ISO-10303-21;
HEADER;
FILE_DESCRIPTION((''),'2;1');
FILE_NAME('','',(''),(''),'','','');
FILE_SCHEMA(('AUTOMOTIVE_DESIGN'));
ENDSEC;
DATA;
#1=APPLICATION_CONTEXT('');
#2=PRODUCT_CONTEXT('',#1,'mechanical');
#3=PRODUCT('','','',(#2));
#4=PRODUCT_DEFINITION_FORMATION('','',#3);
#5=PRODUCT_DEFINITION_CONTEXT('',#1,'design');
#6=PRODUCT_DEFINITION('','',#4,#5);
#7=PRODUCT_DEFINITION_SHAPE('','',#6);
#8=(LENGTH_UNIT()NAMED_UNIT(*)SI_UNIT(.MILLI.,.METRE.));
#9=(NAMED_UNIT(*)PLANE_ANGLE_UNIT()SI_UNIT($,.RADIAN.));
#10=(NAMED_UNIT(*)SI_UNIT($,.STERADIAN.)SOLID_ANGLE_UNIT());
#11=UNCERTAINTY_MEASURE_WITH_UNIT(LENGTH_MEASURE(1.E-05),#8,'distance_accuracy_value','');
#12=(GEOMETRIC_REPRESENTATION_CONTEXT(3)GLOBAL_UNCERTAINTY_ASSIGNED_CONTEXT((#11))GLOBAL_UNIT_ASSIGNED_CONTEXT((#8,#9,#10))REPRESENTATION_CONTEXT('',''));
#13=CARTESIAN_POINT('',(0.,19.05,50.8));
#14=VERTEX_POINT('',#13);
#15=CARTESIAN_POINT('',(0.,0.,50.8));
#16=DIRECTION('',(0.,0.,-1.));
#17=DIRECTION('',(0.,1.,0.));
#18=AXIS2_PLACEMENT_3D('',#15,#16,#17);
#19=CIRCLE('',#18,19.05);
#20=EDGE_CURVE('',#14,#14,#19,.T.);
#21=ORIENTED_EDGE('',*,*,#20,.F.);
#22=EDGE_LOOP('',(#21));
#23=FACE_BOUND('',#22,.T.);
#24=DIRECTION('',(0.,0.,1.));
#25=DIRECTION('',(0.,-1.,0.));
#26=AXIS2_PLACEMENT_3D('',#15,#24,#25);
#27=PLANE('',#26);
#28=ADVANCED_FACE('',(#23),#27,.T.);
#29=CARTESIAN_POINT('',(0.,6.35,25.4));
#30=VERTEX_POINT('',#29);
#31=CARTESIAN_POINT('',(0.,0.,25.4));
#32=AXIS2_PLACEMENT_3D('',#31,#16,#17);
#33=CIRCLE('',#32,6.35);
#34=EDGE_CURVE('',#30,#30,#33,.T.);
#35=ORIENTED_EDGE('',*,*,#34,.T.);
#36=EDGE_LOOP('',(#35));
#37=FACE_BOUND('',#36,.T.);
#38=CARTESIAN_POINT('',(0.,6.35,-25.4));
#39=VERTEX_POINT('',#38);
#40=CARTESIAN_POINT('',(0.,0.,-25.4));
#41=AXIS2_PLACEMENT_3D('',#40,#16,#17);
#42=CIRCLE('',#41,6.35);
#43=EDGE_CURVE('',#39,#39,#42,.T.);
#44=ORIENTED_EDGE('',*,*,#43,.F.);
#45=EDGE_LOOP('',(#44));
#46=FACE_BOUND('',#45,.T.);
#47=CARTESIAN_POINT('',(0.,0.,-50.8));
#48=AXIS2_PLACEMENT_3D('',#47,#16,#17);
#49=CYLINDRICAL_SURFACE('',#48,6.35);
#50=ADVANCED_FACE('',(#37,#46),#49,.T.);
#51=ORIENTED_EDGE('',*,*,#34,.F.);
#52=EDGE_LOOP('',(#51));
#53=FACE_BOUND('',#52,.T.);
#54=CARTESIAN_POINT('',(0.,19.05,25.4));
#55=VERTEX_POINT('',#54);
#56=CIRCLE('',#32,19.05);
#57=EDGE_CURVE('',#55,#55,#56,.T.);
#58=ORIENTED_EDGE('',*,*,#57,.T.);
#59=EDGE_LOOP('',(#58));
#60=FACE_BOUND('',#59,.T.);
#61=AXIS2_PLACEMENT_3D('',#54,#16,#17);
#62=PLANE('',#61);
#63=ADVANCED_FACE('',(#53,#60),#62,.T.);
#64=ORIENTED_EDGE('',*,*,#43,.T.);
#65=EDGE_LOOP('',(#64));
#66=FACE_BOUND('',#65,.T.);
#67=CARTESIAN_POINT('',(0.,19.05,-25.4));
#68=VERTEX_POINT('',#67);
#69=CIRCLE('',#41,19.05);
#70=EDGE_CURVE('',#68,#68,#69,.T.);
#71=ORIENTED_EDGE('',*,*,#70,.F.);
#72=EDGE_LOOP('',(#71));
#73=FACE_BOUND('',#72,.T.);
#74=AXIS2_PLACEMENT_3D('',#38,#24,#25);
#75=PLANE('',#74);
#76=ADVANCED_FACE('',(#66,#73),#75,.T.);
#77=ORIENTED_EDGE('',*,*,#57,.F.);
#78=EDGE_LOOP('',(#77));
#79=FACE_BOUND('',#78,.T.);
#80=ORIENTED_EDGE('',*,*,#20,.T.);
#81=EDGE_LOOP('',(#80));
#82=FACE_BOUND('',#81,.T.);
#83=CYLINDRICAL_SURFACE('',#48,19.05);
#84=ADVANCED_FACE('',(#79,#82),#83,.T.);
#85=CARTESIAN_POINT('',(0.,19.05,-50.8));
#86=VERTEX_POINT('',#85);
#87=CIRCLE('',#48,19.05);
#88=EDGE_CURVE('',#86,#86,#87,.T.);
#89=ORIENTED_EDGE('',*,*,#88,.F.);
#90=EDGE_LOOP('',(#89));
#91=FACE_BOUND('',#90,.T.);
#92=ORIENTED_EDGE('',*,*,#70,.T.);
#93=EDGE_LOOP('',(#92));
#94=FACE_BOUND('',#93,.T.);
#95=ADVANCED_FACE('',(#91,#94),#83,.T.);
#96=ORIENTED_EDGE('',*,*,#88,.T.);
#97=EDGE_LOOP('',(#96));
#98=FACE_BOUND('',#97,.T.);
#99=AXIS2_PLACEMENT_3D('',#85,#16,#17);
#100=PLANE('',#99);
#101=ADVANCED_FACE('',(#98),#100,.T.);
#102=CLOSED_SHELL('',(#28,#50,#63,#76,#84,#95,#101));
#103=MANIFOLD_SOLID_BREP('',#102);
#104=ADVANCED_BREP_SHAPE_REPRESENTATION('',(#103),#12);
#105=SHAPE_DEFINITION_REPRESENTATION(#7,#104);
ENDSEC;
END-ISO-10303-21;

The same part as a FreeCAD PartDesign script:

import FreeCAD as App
import Part
import Sketcher
from FreeCAD import Vector
Q = App.Units.Quantity

doc = App.newDocument("Part")
body = doc.addObject("PartDesign::Body", "Body")

# Sketch on YZ plane
sketch1 = body.newObject("Sketcher::SketchObject", "Sketch")
sketch1.AttachmentSupport = (doc.getObject("YZ_Plane"), [""])
sketch1.MapMode = "FlatFace"
sketch1.addGeometry(Part.LineSegment(Vector(0, 50.8, 0), Vector(0, -50.8, 0)), False)
sketch1.addGeometry(Part.LineSegment(Vector(0, -50.8, 0), Vector(19.05, -50.8, 0)), False)
sketch1.addGeometry(Part.LineSegment(Vector(19.05, -50.8, 0), Vector(19.05, -25.4, 0)), False)
sketch1.addGeometry(Part.LineSegment(Vector(19.05, -25.4, 0), Vector(6.35, -25.4, 0)), False)
sketch1.addGeometry(Part.LineSegment(Vector(6.35, -25.4, 0), Vector(6.35, 25.4, 0)), False)
sketch1.addGeometry(Part.LineSegment(Vector(6.35, 25.4, 0), Vector(19.05, 25.4, 0)), False)
sketch1.addGeometry(Part.LineSegment(Vector(19.05, 25.4, 0), Vector(19.05, 50.8, 0)), False)
sketch1.addGeometry(Part.LineSegment(Vector(19.05, 50.8, 0), Vector(0, 50.8, 0)), False)
sketch1.addConstraint(Sketcher.Constraint("Coincident", 0, 2, 1, 1))
sketch1.addConstraint(Sketcher.Constraint("Coincident", 1, 2, 2, 1))
sketch1.addConstraint(Sketcher.Constraint("Coincident", 2, 2, 3, 1))
sketch1.addConstraint(Sketcher.Constraint("Coincident", 3, 2, 4, 1))
sketch1.addConstraint(Sketcher.Constraint("Coincident", 4, 2, 5, 1))
sketch1.addConstraint(Sketcher.Constraint("Coincident", 5, 2, 6, 1))
sketch1.addConstraint(Sketcher.Constraint("Coincident", 6, 2, 7, 1))
sketch1.addConstraint(Sketcher.Constraint("Coincident", 7, 2, 0, 1))
sketch1.addConstraint(Sketcher.Constraint("Vertical", 0))
sketch1.addConstraint(Sketcher.Constraint("Horizontal", 1))
sketch1.addConstraint(Sketcher.Constraint("Vertical", 2))
sketch1.addConstraint(Sketcher.Constraint("Horizontal", 3))
sketch1.addConstraint(Sketcher.Constraint("Vertical", 4))
sketch1.addConstraint(Sketcher.Constraint("Horizontal", 5))
sketch1.addConstraint(Sketcher.Constraint("Vertical", 6))
sketch1.addConstraint(Sketcher.Constraint("Horizontal", 7))
sketch1.addConstraint(Sketcher.Constraint("Symmetric", 0, 2, 7, 2, -1, 1))
sketch1.addConstraint(Sketcher.Constraint("Symmetric", 2, 2, 5, 2, -1))
sketch1.addConstraint(Sketcher.Constraint("DistanceY", 0, 2, 0, 1, Q("4 in")))
sketch1.addConstraint(Sketcher.Constraint("DistanceY", 2, 1, 2, 2, Q("1 in")))
sketch1.addConstraint(Sketcher.Constraint("DistanceX", 3, 2, 3, 1, Q("0.5 in")))
sketch1.addConstraint(Sketcher.Constraint("DistanceX", 1, 1, 1, 2, Q("0.75 in")))
revolution = body.newObject("PartDesign::Revolution", "Revolution")
revolution.Profile = sketch1
revolution.ReferenceAxis = (sketch1, ["V_Axis"])
revolution.Angle = 360

doc.recompute()
